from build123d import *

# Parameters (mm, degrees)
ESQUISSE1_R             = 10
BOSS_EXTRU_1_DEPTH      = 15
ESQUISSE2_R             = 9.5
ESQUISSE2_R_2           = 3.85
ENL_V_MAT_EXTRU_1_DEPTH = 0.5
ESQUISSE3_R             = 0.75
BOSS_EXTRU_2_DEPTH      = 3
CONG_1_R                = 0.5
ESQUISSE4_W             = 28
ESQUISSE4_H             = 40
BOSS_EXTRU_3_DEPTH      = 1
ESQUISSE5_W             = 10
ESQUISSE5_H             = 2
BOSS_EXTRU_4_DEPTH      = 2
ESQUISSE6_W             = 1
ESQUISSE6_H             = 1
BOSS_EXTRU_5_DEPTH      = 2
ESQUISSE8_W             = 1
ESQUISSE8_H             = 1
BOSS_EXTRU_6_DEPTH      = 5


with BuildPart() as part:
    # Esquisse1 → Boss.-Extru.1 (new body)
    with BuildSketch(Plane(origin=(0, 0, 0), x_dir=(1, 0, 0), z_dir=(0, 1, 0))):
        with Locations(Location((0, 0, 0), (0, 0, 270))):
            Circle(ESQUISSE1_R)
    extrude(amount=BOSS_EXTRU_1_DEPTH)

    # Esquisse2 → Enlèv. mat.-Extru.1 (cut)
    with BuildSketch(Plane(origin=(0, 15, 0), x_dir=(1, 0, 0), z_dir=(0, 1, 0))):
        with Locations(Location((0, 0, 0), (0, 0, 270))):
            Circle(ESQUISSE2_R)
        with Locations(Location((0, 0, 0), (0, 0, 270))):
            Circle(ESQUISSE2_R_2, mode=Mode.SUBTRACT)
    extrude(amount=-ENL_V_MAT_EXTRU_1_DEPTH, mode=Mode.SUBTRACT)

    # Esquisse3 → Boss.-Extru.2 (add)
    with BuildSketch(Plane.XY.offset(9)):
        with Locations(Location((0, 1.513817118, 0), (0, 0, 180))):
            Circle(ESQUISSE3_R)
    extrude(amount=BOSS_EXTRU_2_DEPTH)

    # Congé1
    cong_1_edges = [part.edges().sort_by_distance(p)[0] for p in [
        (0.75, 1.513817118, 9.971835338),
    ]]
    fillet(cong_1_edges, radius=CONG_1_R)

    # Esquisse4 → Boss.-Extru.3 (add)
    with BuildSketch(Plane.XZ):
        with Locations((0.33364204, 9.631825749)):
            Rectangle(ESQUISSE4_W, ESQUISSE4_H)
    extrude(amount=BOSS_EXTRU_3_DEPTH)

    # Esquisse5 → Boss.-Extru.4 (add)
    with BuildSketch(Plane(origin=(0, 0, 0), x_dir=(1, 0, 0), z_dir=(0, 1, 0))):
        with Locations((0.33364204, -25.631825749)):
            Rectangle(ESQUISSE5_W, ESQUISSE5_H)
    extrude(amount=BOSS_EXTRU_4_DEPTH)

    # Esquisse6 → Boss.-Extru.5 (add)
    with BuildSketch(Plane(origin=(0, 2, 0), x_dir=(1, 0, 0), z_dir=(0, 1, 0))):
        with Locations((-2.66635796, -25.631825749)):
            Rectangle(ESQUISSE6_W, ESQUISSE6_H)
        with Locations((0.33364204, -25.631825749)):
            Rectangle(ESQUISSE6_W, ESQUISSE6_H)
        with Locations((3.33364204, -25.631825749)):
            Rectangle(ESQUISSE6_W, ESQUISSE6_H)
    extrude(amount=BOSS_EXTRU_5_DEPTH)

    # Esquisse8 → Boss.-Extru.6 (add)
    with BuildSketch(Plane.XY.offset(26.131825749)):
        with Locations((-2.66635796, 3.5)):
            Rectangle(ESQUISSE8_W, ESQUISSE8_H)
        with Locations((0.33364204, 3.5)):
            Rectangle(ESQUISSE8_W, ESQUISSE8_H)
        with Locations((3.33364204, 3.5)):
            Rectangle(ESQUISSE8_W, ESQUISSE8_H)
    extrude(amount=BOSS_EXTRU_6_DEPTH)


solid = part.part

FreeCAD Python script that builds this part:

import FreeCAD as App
import Part
import Sketcher

V = App.Vector


def edges_at(feature, points):
    """Names of the edges that pass closest to the given points."""
    edges = feature.Shape.Edges
    near = lambda p: min(range(len(edges)), key=lambda i: edges[i].distToShape(Part.Vertex(*p))[0])
    return sorted({f"Edge{near(p) + 1}" for p in points})

doc = App.newDocument("Part")
body = doc.addObject("PartDesign::Body", "Body")

sketch1 = body.newObject("Sketcher::SketchObject", "Sketch")
sketch1.AttachmentSupport = (doc.getObject("XZ_Plane"), [""])
sketch1.MapMode = "FlatFace"
sketch1.addGeometry(Part.Circle(V(0, 0, 0), V(0, 0, 1), 10), False)
sketch1.addConstraint([
    Sketcher.Constraint("Coincident", 0, 3, -1, 1),
    Sketcher.Constraint("Diameter", 0, 20.0),
])
pad1 = body.newObject("PartDesign::Pad", "Pad")
pad1.Profile = sketch1
pad1.Length = 15
pad1.Reversed = True

sketch2 = body.newObject("Sketcher::SketchObject", "Sketch001")
sketch2.AttachmentSupport = (doc.getObject("XZ_Plane"), [""])
sketch2.MapMode = "FlatFace"
sketch2.AttachmentOffset = App.Placement(V(0, 0, -15), App.Rotation())
sketch2.addGeometry([
    Part.Circle(V(0, 0, 0), V(0, 0, 1), 9.5),
    Part.Circle(V(0, 0, 0), V(0, 0, 1), 3.85),
], False)
sketch2.addConstraint([
    Sketcher.Constraint("Coincident", 0, 3, -1, 1),
    Sketcher.Constraint("Coincident", 1, 3, -1, 1),
    Sketcher.Constraint("Diameter", 0, 19.0),
    Sketcher.Constraint("Diameter", 1, 7.7),
])
pocket1 = body.newObject("PartDesign::Pocket", "Pocket")
pocket1.Profile = sketch2
pocket1.Length = 0.5
pocket1.Reversed = True

sketch3 = body.newObject("Sketcher::SketchObject", "Sketch002")
sketch3.AttachmentSupport = (doc.getObject("XY_Plane"), [""])
sketch3.MapMode = "FlatFace"
sketch3.AttachmentOffset = App.Placement(V(0, 0, 9), App.Rotation())
sketch3.addGeometry(Part.Circle(V(0, 1.513817, 0), V(0, 0, 1), 0.75), False)
sketch3.addConstraint([
    Sketcher.Constraint("PointOnObject", 0, 3, -2),
    Sketcher.Constraint("Diameter", 0, 1.5),
    Sketcher.Constraint("DistanceY", -1, 1, 0, 3, 1.513817),
])
pad2 = body.newObject("PartDesign::Pad", "Pad001")
pad2.Profile = sketch3
pad2.Length = 3
doc.recompute()

fillet = body.newObject("PartDesign::Fillet", "Fillet")
fillet.Base = (pad2, edges_at(pad2, [(0.75, 1.514, 9.972)]))
fillet.Radius = 0.5

sketch4 = body.newObject("Sketcher::SketchObject", "Sketch003")
sketch4.AttachmentSupport = (doc.getObject("XZ_Plane"), [""])
sketch4.MapMode = "FlatFace"
sketch4.addGeometry([
    Part.LineSegment(V(-13.666358, 29.631826, 0), V(-13.666358, -10.368174, 0)),
    Part.LineSegment(V(-13.666358, -10.368174, 0), V(14.333642, -10.368174, 0)),
    Part.LineSegment(V(14.333642, -10.368174, 0), V(14.333642, 29.631826, 0)),
    Part.LineSegment(V(14.333642, 29.631826, 0), V(-13.666358, 29.631826, 0)),
], False)
sketch4.addConstraint([
    Sketcher.Constraint("Coincident", 0, 2, 1, 1),
    Sketcher.Constraint("Coincident", 1, 2, 2, 1),
    Sketcher.Constraint("Coincident", 2, 2, 3, 1),
    Sketcher.Constraint("Coincident", 3, 2, 0, 1),
    Sketcher.Constraint("Vertical", 0),
    Sketcher.Constraint("Horizontal", 1),
    Sketcher.Constraint("Vertical", 2),
    Sketcher.Constraint("Horizontal", 3),
    Sketcher.Constraint("DistanceX", 1, 1, 1, 2, 28.0),
    Sketcher.Constraint("DistanceY", 0, 2, 0, 1, 40.0),
    Sketcher.Constraint("DistanceX", 0, 2, -1, 1, 13.666358),
    Sketcher.Constraint("DistanceY", 0, 2, -1, 1, 10.368174),
])
pad3 = body.newObject("PartDesign::Pad", "Pad002")
pad3.Profile = sketch4
pad3.Length = 1

sketch5 = body.newObject("Sketcher::SketchObject", "Sketch004")
sketch5.AttachmentSupport = (doc.getObject("XZ_Plane"), [""])
sketch5.MapMode = "FlatFace"
sketch5.addGeometry([
    Part.LineSegment(V(-4.666358, 24.631826, 0), V(-4.666358, 26.631826, 0)),
    Part.LineSegment(V(-4.666358, 26.631826, 0), V(5.333642, 26.631826, 0)),
    Part.LineSegment(V(5.333642, 26.631826, 0), V(5.333642, 24.631826, 0)),
    Part.LineSegment(V(5.333642, 24.631826, 0), V(-4.666358, 24.631826, 0)),
], False)
sketch5.addConstraint([
    Sketcher.Constraint("Coincident", 0, 2, 1, 1),
    Sketcher.Constraint("Coincident", 1, 2, 2, 1),
    Sketcher.Constraint("Coincident", 2, 2, 3, 1),
    Sketcher.Constraint("Coincident", 3, 2, 0, 1),
    Sketcher.Constraint("Vertical", 0),
    Sketcher.Constraint("Horizontal", 1),
    Sketcher.Constraint("Vertical", 2),
    Sketcher.Constraint("Horizontal", 3),
    Sketcher.Constraint("DistanceX", 1, 1, 1, 2, 10.0),
    Sketcher.Constraint("DistanceY", 0, 1, 0, 2, 2.0),
    Sketcher.Constraint("DistanceX", 0, 2, -1, 1, 4.666358),
    Sketcher.Constraint("DistanceY", -1, 1, 0, 2, 26.631826),
])
pad4 = body.newObject("PartDesign::Pad", "Pad003")
pad4.Profile = sketch5
pad4.Length = 2
pad4.Reversed = True

sketch6 = body.newObject("Sketcher::SketchObject", "Sketch005")
sketch6.AttachmentSupport = (doc.getObject("XZ_Plane"), [""])
sketch6.MapMode = "FlatFace"
sketch6.AttachmentOffset = App.Placement(V(0, 0, -2), App.Rotation())
sketch6.addGeometry([
    Part.LineSegment(V(-3.166358, 25.131826, 0), V(-3.166358, 26.131826, 0)),
    Part.LineSegment(V(-3.166358, 26.131826, 0), V(-2.166358, 26.131826, 0)),
    Part.LineSegment(V(-2.166358, 26.131826, 0), V(-2.166358, 25.131826, 0)),
    Part.LineSegment(V(-2.166358, 25.131826, 0), V(-3.166358, 25.131826, 0)),
    Part.LineSegment(V(-0.166358, 25.131826, 0), V(-0.166358, 26.131826, 0)),
    Part.LineSegment(V(-0.166358, 26.131826, 0), V(0.833642, 26.131826, 0)),
    Part.LineSegment(V(0.833642, 26.131826, 0), V(0.833642, 25.131826, 0)),
    Part.LineSegment(V(0.833642, 25.131826, 0), V(-0.166358, 25.131826, 0)),
    Part.LineSegment(V(2.833642, 25.131826, 0), V(2.833642, 26.131826, 0)),
    Part.LineSegment(V(2.833642, 26.131826, 0), V(3.833642, 26.131826, 0)),
    Part.LineSegment(V(3.833642, 26.131826, 0), V(3.833642, 25.131826, 0)),
    Part.LineSegment(V(3.833642, 25.131826, 0), V(2.833642, 25.131826, 0)),
], False)
sketch6.addConstraint([
    Sketcher.Constraint("Coincident", 0, 2, 1, 1),
    Sketcher.Constraint("Coincident", 1, 2, 2, 1),
    Sketcher.Constraint("Coincident", 2, 2, 3, 1),
    Sketcher.Constraint("Coincident", 3, 2, 0, 1),
    Sketcher.Constraint("Coincident", 4, 2, 5, 1),
    Sketcher.Constraint("Coincident", 5, 2, 6, 1),
    Sketcher.Constraint("Coincident", 6, 2, 7, 1),
    Sketcher.Constraint("Coincident", 7, 2, 4, 1),
    Sketcher.Constraint("Coincident", 8, 2, 9, 1),
    Sketcher.Constraint("Coincident", 9, 2, 10, 1),
    Sketcher.Constraint("Coincident", 10, 2, 11, 1),
    Sketcher.Constraint("Coincident", 11, 2, 8, 1),
    Sketcher.Constraint("Vertical", 0),
    Sketcher.Constraint("Horizontal", 1),
    Sketcher.Constraint("Vertical", 2),
    Sketcher.Constraint("Horizontal", 3),
    Sketcher.Constraint("Vertical", 4),
    Sketcher.Constraint("Horizontal", 5),
    Sketcher.Constraint("Vertical", 6),
    Sketcher.Constraint("Horizontal", 7),
    Sketcher.Constraint("Vertical", 8),
    Sketcher.Constraint("Horizontal", 9),
    Sketcher.Constraint("Vertical", 10),
    Sketcher.Constraint("Horizontal", 11),
    Sketcher.Constraint("Horizontal", 1, 2, 4, 2),
    Sketcher.Constraint("Horizontal", 3, 2, 6, 2),
    Sketcher.Constraint("Horizontal", 5, 2, 8, 2),
    Sketcher.Constraint("Horizontal", 7, 2, 10, 2),
    Sketcher.Constraint("Equal", 3, 5),
    Sketcher.Constraint("Equal", 7, 9),
    Sketcher.Constraint("Equal", 11, 0),
    Sketcher.Constraint("DistanceX", 1, 1, 1, 2, 1.0),
    Sketcher.Constraint("DistanceX", 1, 2, 4, 2, 2.0),
    Sketcher.Constraint("DistanceX", 5, 2, 8, 2, 2.0),
    Sketcher.Constraint("DistanceX", 0, 2, -1, 1, 3.166358),
    Sketcher.Constraint("DistanceY", -1, 1, 0, 2, 26.131826),
])
pad5 = body.newObject("PartDesign::Pad", "Pad004")
pad5.Profile = sketch6
pad5.Length = 2
pad5.Reversed = True

sketch7 = body.newObject("Sketcher::SketchObject", "Sketch006")
sketch7.AttachmentSupport = (doc.getObject("XY_Plane"), [""])
sketch7.MapMode = "FlatFace"
sketch7.AttachmentOffset = App.Placement(V(0, 0, 26.131826), App.Rotation())
sketch7.addGeometry([
    Part.LineSegment(V(-3.166358, 4, 0), V(-3.166358, 3, 0)),
    Part.LineSegment(V(-3.166358, 3, 0), V(-2.166358, 3, 0)),
    Part.LineSegment(V(-2.166358, 3, 0), V(-2.166358, 4, 0)),
    Part.LineSegment(V(-2.166358, 4, 0), V(-3.166358, 4, 0)),
    Part.LineSegment(V(-0.166358, 4, 0), V(-0.166358, 3, 0)),
    Part.LineSegment(V(-0.166358, 3, 0), V(0.833642, 3, 0)),
    Part.LineSegment(V(0.833642, 3, 0), V(0.833642, 4, 0)),
    Part.LineSegment(V(0.833642, 4, 0), V(-0.166358, 4, 0)),
    Part.LineSegment(V(2.833642, 4, 0), V(2.833642, 3, 0)),
    Part.LineSegment(V(2.833642, 3, 0), V(3.833642, 3, 0)),
    Part.LineSegment(V(3.833642, 3, 0), V(3.833642, 4, 0)),
    Part.LineSegment(V(3.833642, 4, 0), V(2.833642, 4, 0)),
], False)
sketch7.addConstraint([
    Sketcher.Constraint("Coincident", 0, 2, 1, 1),
    Sketcher.Constraint("Coincident", 1, 2, 2, 1),
    Sketcher.Constraint("Coincident", 2, 2, 3, 1),
    Sketcher.Constraint("Coincident", 3, 2, 0, 1),
    Sketcher.Constraint("Coincident", 4, 2, 5, 1),
    Sketcher.Constraint("Coincident", 5, 2, 6, 1),
    Sketcher.Constraint("Coincident", 6, 2, 7, 1),
    Sketcher.Constraint("Coincident", 7, 2, 4, 1),
    Sketcher.Constraint("Coincident", 8, 2, 9, 1),
    Sketcher.Constraint("Coincident", 9, 2, 10, 1),
    Sketcher.Constraint("Coincident", 10, 2, 11, 1),
    Sketcher.Constraint("Coincident", 11, 2, 8, 1),
    Sketcher.Constraint("Vertical", 0),
    Sketcher.Constraint("Horizontal", 1),
    Sketcher.Constraint("Vertical", 2),
    Sketcher.Constraint("Horizontal", 3),
    Sketcher.Constraint("Vertical", 4),
    Sketcher.Constraint("Horizontal", 5),
    Sketcher.Constraint("Vertical", 6),
    Sketcher.Constraint("Horizontal", 7),
    Sketcher.Constraint("Vertical", 8),
    Sketcher.Constraint("Horizontal", 9),
    Sketcher.Constraint("Vertical", 10),
    Sketcher.Constraint("Horizontal", 11),
    Sketcher.Constraint("Horizontal", 1, 2, 4, 2),
    Sketcher.Constraint("Horizontal", 3, 2, 6, 2),
    Sketcher.Constraint("Horizontal", 5, 2, 8, 2),
    Sketcher.Constraint("Horizontal", 7, 2, 10, 2),
    Sketcher.Constraint("Equal", 3, 5),
    Sketcher.Constraint("Equal", 7, 9),
    Sketcher.Constraint("Equal", 11, 0),
    Sketcher.Constraint("DistanceX", 1, 1, 1, 2, 1.0),
    Sketcher.Constraint("DistanceY", -1, 1, 0, 2, 3.0),
    Sketcher.Constraint("DistanceX", 1, 2, 4, 2, 2.0),
    Sketcher.Constraint("DistanceX", 5, 2, 8, 2, 2.0),
    Sketcher.Constraint("DistanceX", 0, 2, -1, 1, 3.166358),
])
pad6 = body.newObject("PartDesign::Pad", "Pad005")
pad6.Profile = sketch7
pad6.Length = 5

doc.recompute()
